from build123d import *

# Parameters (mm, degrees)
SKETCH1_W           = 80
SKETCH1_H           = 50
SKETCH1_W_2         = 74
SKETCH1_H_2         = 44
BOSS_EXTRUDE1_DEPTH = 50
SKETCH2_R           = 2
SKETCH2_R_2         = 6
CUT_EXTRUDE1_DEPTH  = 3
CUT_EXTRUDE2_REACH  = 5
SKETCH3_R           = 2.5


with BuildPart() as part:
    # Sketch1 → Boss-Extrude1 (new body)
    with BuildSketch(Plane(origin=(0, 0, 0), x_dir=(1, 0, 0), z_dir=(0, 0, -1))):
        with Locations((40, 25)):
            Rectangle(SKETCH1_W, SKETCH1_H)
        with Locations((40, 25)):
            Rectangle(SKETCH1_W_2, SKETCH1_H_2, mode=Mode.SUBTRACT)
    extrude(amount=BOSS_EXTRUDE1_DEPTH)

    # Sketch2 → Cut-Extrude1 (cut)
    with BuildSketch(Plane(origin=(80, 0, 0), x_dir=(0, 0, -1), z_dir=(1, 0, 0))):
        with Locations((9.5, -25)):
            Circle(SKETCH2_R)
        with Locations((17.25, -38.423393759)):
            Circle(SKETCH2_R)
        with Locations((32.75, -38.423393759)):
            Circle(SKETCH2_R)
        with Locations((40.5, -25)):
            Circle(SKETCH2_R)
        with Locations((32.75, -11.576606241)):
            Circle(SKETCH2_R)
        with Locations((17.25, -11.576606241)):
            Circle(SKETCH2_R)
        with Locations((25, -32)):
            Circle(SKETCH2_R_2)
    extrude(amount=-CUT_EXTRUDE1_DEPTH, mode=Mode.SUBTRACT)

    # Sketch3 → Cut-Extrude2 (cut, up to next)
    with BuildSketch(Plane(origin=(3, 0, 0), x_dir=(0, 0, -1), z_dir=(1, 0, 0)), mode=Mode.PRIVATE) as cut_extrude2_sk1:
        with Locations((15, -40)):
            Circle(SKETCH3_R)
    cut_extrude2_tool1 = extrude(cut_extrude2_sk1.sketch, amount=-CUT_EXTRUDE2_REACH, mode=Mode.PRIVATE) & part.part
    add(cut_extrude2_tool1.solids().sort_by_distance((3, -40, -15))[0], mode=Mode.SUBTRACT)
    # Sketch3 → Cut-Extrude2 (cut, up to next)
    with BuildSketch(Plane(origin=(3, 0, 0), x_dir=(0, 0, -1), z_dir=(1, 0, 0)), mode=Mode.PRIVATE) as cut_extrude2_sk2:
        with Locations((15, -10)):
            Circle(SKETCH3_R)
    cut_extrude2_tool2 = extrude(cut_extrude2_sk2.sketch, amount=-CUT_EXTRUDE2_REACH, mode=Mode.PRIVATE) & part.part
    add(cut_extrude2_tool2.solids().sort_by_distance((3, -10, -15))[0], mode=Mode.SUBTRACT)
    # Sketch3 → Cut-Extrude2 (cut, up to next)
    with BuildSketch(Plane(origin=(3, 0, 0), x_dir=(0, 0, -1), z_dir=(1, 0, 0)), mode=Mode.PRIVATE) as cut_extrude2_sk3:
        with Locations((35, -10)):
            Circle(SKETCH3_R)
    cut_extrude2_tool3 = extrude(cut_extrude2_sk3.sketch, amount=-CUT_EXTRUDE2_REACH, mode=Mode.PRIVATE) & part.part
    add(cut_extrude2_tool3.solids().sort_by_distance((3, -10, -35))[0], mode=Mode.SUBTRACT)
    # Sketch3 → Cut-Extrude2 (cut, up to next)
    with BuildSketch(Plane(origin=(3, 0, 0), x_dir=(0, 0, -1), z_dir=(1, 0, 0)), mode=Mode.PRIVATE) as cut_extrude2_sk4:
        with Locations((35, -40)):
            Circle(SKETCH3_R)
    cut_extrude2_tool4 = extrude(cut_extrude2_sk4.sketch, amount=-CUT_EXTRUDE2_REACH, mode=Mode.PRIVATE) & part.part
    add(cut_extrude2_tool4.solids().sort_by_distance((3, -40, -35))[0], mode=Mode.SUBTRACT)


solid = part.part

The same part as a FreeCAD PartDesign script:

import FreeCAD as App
import Part
import Sketcher

V = App.Vector

doc = App.newDocument("Part")
params = doc.addObject("Spreadsheet::Sheet", "Params")
for row, (alias, value) in enumerate([
    ("sketch1_width", "80 mm"),
    ("sketch1_width2", "74 mm"),
    ("sketch1_height", "50 mm"),
    ("sketch1_height2", "44 mm"),
    ("pad1_length", "50 mm"),
    ("sketch2_diameter", "4 mm"),
    ("sketch2_diameter2", "12 mm"),
    ("pocket1_length", "3 mm"),
    ("sketch3_diameter", "5 mm"),
    ("sketch4_diameter", "5 mm"),
    ("sketch5_diameter", "5 mm"),
    ("sketch6_diameter", "5 mm"),
], start=1):
    params.set(f"A{row}", alias)
    params.set(f"B{row}", "=" + value)
    params.setAlias(f"B{row}", alias)

body = doc.addObject("PartDesign::Body", "Body")

# Sketch on XY plane
sketch1 = body.newObject("Sketcher::SketchObject", "Sketch")
sketch1.AttachmentSupport = (doc.getObject("XY_Plane"), [""])
sketch1.MapMode = "FlatFace"
sketch1.addGeometry([
    Part.LineSegment(V(0, -50, 0), V(0, 0, 0)),  # 0
    Part.LineSegment(V(0, 0, 0), V(80, 0, 0)),  # 1
    Part.LineSegment(V(80, 0, 0), V(80, -50, 0)),  # 2
    Part.LineSegment(V(80, -50, 0), V(0, -50, 0)),  # 3
    Part.LineSegment(V(77, -3, 0), V(3, -3, 0)),  # 4
    Part.LineSegment(V(3, -3, 0), V(3, -47, 0)),  # 5
    Part.LineSegment(V(3, -47, 0), V(77, -47, 0)),  # 6
    Part.LineSegment(V(77, -47, 0), V(77, -3, 0)),  # 7
], False)
sketch1.addConstraint([
    Sketcher.Constraint("Coincident", 0, 2, 1, 1),
    Sketcher.Constraint("Coincident", 1, 2, 2, 1),
    Sketcher.Constraint("Coincident", 2, 2, 3, 1),
    Sketcher.Constraint("Coincident", 3, 2, 0, 1),
    Sketcher.Constraint("Coincident", 4, 2, 5, 1),
    Sketcher.Constraint("Coincident", 5, 2, 6, 1),
    Sketcher.Constraint("Coincident", 6, 2, 7, 1),
    Sketcher.Constraint("Coincident", 7, 2, 4, 1),
    Sketcher.Constraint("Vertical", 0),
    Sketcher.Constraint("Horizontal", 1),
    Sketcher.Constraint("Vertical", 2),
    Sketcher.Constraint("Horizontal", 3),
    Sketcher.Constraint("Horizontal", 4),
    Sketcher.Constraint("Vertical", 5),
    Sketcher.Constraint("Horizontal", 6),
    Sketcher.Constraint("Vertical", 7),
    Sketcher.Constraint("Coincident", 0, 2, -1, 1),
    Sketcher.Constraint("DistanceX", 1, 1, 1, 2, 80.0),
    Sketcher.Constraint("DistanceX", 4, 2, 4, 1, 74.0),
    Sketcher.Constraint("DistanceY", 0, 1, 0, 2, 50.0),
    Sketcher.Constraint("DistanceY", 5, 2, 5, 1, 44.0),
    Sketcher.Constraint("DistanceX", -1, 1, 4, 2, 3.0),
    Sketcher.Constraint("DistanceY", 4, 2, -1, 1, 3.0),
])
sketch1.setExpression("Constraints[17]", "Params.sketch1_width")
sketch1.setExpression("Constraints[18]", "Params.sketch1_width2")
sketch1.setExpression("Constraints[19]", "Params.sketch1_height")
sketch1.setExpression("Constraints[20]", "Params.sketch1_height2")
pad1 = body.newObject("PartDesign::Pad", "Pad")
pad1.Profile = sketch1
pad1.setExpression("Length", "Params.pad1_length")
pad1.Reversed = True

# Sketch on YZ plane
sketch2 = body.newObject("Sketcher::SketchObject", "Sketch001")
sketch2.AttachmentSupport = (doc.getObject("YZ_Plane"), [""])
sketch2.MapMode = "FlatFace"
sketch2.AttachmentOffset = App.Placement(V(0, 0, 80), App.Rotation())
sketch2.addGeometry([
    Part.Circle(V(-25, -9.5, 0), V(0, 0, 1), 2),  # 0
    Part.Circle(V(-38.4, -17.2, 0), V(0, 0, 1), 2),  # 1
    Part.Circle(V(-38.4, -32.8, 0), V(0, 0, 1), 2),  # 2
    Part.Circle(V(-25, -40.5, 0), V(0, 0, 1), 2),  # 3
    Part.Circle(V(-11.6, -32.8, 0), V(0, 0, 1), 2),  # 4
    Part.Circle(V(-11.6, -17.2, 0), V(0, 0, 1), 2),  # 5
    Part.Circle(V(-32, -25, 0), V(0, 0, 1), 6),  # 6
], False)
sketch2.addConstraint([
    Sketcher.Constraint("Equal", 0, 1),
    Sketcher.Constraint("Equal", 1, 2),
    Sketcher.Constraint("Equal", 2, 3),
    Sketcher.Constraint("Equal", 3, 4),
    Sketcher.Constraint("Equal", 4, 5),
    Sketcher.Constraint("Horizontal", 2, 3, 4, 3),
    Sketcher.Constraint("Horizontal", 1, 3, 5, 3),
    Sketcher.Constraint("Vertical", 1, 3, 2, 3),
    Sketcher.Constraint("Vertical", 0, 3, 3, 3),
    Sketcher.Constraint("Vertical", 4, 3, 5, 3),
    Sketcher.Constraint("Diameter", 0, 4.0),
    Sketcher.Constraint("Diameter", 6, 12.0),
    Sketcher.Constraint("DistanceX", 0, 3, -1, 1, 25.0),
    Sketcher.Constraint("DistanceX", 6, 3, -1, 1, 32.0),
    Sketcher.Constraint("DistanceY", 6, 3, -1, 1, 25.0),
    Sketcher.Constraint("DistanceY", 3, 3, 0, 3, 31.0),
    Sketcher.Constraint("DistanceY", 0, 3, -1, 1, 9.5),
    Sketcher.Constraint("DistanceY", 2, 3, 1, 3, 15.5),
    Sketcher.Constraint("DistanceY", 1, 3, -1, 1, 17.25),
    Sketcher.Constraint("DistanceX", 1, 3, -1, 1, 38.423394),
    Sketcher.Constraint("DistanceX", 4, 3, -1, 1, 11.576606),
])
sketch2.setExpression("Constraints[10]", "Params.sketch2_diameter")
sketch2.setExpression("Constraints[11]", "Params.sketch2_diameter2")
pocket1 = body.newObject("PartDesign::Pocket", "Pocket")
pocket1.Profile = sketch2
pocket1.setExpression("Length", "Params.pocket1_length")

# Sketch on YZ plane
sketch3 = body.newObject("Sketcher::SketchObject", "Sketch002")
sketch3.AttachmentSupport = (doc.getObject("YZ_Plane"), [""])
sketch3.MapMode = "FlatFace"
sketch3.AttachmentOffset = App.Placement(V(0, 0, 3), App.Rotation())
sketch3.addGeometry(Part.Circle(V(-40, -15, 0), V(0, 0, 1), 2.5), False)
sketch3.addConstraint([
    Sketcher.Constraint("Diameter", 0, 5.0),
    Sketcher.Constraint("DistanceX", 0, 3, -1, 1, 40.0),
    Sketcher.Constraint("DistanceY", 0, 3, -1, 1, 15.0),
])
sketch3.setExpression("Constraints[0]", "Params.sketch3_diameter")
pocket2 = body.newObject("PartDesign::Pocket", "Pocket001")
pocket2.Profile = sketch3
pocket2.Type = "UpToFirst"

# Sketch on YZ plane
sketch4 = body.newObject("Sketcher::SketchObject", "Sketch003")
sketch4.AttachmentSupport = (doc.getObject("YZ_Plane"), [""])
sketch4.MapMode = "FlatFace"
sketch4.AttachmentOffset = App.Placement(V(0, 0, 3), App.Rotation())
sketch4.addGeometry(Part.Circle(V(-10, -15, 0), V(0, 0, 1), 2.5), False)
sketch4.addConstraint([
    Sketcher.Constraint("Diameter", 0, 5.0),
    Sketcher.Constraint("DistanceX", 0, 3, -1, 1, 10.0),
    Sketcher.Constraint("DistanceY", 0, 3, -1, 1, 15.0),
])
sketch4.setExpression("Constraints[0]", "Params.sketch4_diameter")
pocket3 = body.newObject("PartDesign::Pocket", "Pocket002")
pocket3.Profile = sketch4
pocket3.Type = "UpToFirst"

# Sketch on YZ plane
sketch5 = body.newObject("Sketcher::SketchObject", "Sketch004")
sketch5.AttachmentSupport = (doc.getObject("YZ_Plane"), [""])
sketch5.MapMode = "FlatFace"
sketch5.AttachmentOffset = App.Placement(V(0, 0, 3), App.Rotation())
sketch5.addGeometry(Part.Circle(V(-10, -35, 0), V(0, 0, 1), 2.5), False)
sketch5.addConstraint([
    Sketcher.Constraint("Diameter", 0, 5.0),
    Sketcher.Constraint("DistanceX", 0, 3, -1, 1, 10.0),
    Sketcher.Constraint("DistanceY", 0, 3, -1, 1, 35.0),
])
sketch5.setExpression("Constraints[0]", "Params.sketch5_diameter")
pocket4 = body.newObject("PartDesign::Pocket", "Pocket003")
pocket4.Profile = sketch5
pocket4.Type = "UpToFirst"

# Sketch on YZ plane
sketch6 = body.newObject("Sketcher::SketchObject", "Sketch005")
sketch6.AttachmentSupport = (doc.getObject("YZ_Plane"), [""])
sketch6.MapMode = "FlatFace"
sketch6.AttachmentOffset = App.Placement(V(0, 0, 3), App.Rotation())
sketch6.addGeometry(Part.Circle(V(-40, -35, 0), V(0, 0, 1), 2.5), False)
sketch6.addConstraint([
    Sketcher.Constraint("Diameter", 0, 5.0),
    Sketcher.Constraint("DistanceX", 0, 3, -1, 1, 40.0),
    Sketcher.Constraint("DistanceY", 0, 3, -1, 1, 35.0),
])
sketch6.setExpression("Constraints[0]", "Params.sketch6_diameter")
pocket5 = body.newObject("PartDesign::Pocket", "Pocket004")
pocket5.Profile = sketch6
pocket5.Type = "UpToFirst"

doc.recompute()
